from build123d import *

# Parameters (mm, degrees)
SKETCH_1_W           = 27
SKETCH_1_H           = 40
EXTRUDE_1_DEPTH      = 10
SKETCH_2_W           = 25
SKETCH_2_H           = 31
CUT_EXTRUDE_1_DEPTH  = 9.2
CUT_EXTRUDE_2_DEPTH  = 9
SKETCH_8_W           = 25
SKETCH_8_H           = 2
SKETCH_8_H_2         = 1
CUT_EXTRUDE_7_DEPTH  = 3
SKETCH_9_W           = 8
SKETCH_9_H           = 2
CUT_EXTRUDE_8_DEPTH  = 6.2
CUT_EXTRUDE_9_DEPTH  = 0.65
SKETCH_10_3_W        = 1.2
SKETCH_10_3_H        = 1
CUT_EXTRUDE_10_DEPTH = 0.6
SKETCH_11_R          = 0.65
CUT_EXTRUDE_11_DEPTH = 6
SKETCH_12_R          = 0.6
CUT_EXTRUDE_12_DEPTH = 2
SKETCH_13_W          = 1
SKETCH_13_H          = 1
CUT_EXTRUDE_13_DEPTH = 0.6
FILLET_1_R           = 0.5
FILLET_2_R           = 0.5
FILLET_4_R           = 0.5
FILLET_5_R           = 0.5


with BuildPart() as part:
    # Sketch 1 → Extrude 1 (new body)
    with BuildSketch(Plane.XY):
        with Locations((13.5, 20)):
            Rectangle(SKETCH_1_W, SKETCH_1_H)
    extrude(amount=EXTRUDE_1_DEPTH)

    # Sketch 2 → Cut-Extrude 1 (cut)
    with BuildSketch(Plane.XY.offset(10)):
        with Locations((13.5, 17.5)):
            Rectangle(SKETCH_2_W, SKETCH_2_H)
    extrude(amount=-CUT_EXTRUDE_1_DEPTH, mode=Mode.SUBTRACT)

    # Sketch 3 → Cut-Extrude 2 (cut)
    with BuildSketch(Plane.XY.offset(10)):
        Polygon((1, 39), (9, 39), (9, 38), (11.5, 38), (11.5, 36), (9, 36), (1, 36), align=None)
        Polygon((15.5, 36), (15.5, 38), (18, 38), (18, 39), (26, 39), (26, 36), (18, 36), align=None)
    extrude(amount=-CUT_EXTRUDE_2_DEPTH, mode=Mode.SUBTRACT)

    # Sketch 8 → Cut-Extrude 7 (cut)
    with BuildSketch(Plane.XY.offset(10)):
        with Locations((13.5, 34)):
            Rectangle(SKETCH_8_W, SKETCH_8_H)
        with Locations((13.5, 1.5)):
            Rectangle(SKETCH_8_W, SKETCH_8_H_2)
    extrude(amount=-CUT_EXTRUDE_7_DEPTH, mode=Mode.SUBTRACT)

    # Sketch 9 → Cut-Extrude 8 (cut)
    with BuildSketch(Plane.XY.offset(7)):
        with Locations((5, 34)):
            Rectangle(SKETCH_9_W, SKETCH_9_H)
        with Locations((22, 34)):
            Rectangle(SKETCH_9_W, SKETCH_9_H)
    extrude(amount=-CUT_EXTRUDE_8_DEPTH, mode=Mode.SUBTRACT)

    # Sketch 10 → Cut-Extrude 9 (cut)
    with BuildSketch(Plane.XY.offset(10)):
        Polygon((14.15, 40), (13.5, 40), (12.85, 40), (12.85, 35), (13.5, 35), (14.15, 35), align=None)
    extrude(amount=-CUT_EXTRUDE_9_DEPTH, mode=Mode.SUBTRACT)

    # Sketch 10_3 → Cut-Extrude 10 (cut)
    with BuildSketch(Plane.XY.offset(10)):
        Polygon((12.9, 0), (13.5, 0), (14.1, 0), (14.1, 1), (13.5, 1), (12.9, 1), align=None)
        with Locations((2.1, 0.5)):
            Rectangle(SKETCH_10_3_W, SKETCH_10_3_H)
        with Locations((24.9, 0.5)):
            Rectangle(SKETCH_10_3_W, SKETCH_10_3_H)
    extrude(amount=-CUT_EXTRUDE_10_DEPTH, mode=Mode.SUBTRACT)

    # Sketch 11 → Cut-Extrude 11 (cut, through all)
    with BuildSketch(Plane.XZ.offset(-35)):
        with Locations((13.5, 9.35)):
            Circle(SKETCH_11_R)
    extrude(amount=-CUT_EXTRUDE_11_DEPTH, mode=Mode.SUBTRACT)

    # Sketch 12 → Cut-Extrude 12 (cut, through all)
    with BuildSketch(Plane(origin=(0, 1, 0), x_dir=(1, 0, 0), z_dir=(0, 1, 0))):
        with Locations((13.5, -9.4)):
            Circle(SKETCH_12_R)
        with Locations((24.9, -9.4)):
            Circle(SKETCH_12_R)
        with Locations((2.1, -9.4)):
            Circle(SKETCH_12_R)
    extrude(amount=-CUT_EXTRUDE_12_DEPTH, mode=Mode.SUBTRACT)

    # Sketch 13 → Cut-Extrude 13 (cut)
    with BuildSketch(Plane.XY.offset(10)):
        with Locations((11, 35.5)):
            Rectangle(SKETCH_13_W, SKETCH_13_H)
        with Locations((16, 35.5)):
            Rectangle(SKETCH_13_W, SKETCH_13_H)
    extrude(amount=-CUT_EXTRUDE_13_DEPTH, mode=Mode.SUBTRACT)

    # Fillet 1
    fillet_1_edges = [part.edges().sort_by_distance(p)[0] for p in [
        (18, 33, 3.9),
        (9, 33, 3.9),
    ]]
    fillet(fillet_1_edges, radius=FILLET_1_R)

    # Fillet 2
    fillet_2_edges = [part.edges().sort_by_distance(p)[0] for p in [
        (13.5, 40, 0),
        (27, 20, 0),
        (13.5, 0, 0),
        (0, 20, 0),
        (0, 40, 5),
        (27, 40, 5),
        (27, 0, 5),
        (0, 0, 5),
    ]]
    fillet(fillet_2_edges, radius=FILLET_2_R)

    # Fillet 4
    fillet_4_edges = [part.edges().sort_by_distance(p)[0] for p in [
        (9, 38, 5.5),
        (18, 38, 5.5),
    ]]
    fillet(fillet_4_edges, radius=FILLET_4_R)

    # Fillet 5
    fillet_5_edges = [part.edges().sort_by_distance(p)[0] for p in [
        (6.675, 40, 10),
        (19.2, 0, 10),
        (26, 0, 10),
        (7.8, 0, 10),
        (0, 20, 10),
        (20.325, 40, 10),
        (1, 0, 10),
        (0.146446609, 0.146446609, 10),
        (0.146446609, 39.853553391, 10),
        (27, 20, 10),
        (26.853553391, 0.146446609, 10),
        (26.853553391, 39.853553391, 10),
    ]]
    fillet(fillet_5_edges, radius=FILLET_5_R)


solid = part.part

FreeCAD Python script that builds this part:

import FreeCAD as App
import Part
import Sketcher

V = App.Vector


def edges_at(feature, points):
    """Names of the edges that pass closest to the given points."""
    edges = feature.Shape.Edges
    near = lambda p: min(range(len(edges)), key=lambda i: edges[i].distToShape(Part.Vertex(*p))[0])
    return sorted({f"Edge{near(p) + 1}" for p in points})

doc = App.newDocument("Part")
body = doc.addObject("PartDesign::Body", "Body")

# Sketch on XY plane
sketch1 = body.newObject("Sketcher::SketchObject", "Sketch")
sketch1.AttachmentSupport = (doc.getObject("XY_Plane"), [""])
sketch1.MapMode = "FlatFace"
sketch1.addGeometry([
    Part.LineSegment(V(0, 40, 0), V(0, 0, 0)),
    Part.LineSegment(V(0, 0, 0), V(27, 0, 0)),
    Part.LineSegment(V(27, 0, 0), V(27, 40, 0)),
    Part.LineSegment(V(27, 40, 0), V(0, 40, 0)),
], False)
sketch1.addConstraint([
    Sketcher.Constraint("Coincident", 0, 2, 1, 1),
    Sketcher.Constraint("Coincident", 1, 2, 2, 1),
    Sketcher.Constraint("Coincident", 2, 2, 3, 1),
    Sketcher.Constraint("Coincident", 3, 2, 0, 1),
    Sketcher.Constraint("Vertical", 0),
    Sketcher.Constraint("Horizontal", 1),
    Sketcher.Constraint("Vertical", 2),
    Sketcher.Constraint("Horizontal", 3),
    Sketcher.Constraint("Coincident", 0, 2, -1, 1),
    Sketcher.Constraint("DistanceX", 1, 1, 1, 2, 27.0),
    Sketcher.Constraint("DistanceY", 0, 2, 0, 1, 40.0),
])
pad1 = body.newObject("PartDesign::Pad", "Pad")
pad1.Profile = sketch1
pad1.Length = 10

# Sketch on XY plane
sketch2 = body.newObject("Sketcher::SketchObject", "Sketch001")
sketch2.AttachmentSupport = (doc.getObject("XY_Plane"), [""])
sketch2.MapMode = "FlatFace"
sketch2.AttachmentOffset = App.Placement(V(0, 0, 10), App.Rotation())
sketch2.addGeometry([
    Part.LineSegment(V(1, 33, 0), V(1, 2, 0)),
    Part.LineSegment(V(1, 2, 0), V(26, 2, 0)),
    Part.LineSegment(V(26, 2, 0), V(26, 33, 0)),
    Part.LineSegment(V(26, 33, 0), V(1, 33, 0)),
], False)
sketch2.addConstraint([
    Sketcher.Constraint("Coincident", 0, 2, 1, 1),
    Sketcher.Constraint("Coincident", 1, 2, 2, 1),
    Sketcher.Constraint("Coincident", 2, 2, 3, 1),
    Sketcher.Constraint("Coincident", 3, 2, 0, 1),
    Sketcher.Constraint("Vertical", 0),
    Sketcher.Constraint("Horizontal", 1),
    Sketcher.Constraint("Vertical", 2),
    Sketcher.Constraint("Horizontal", 3),
    Sketcher.Constraint("DistanceX", 1, 1, 1, 2, 25.0),
    Sketcher.Constraint("DistanceY", 0, 2, 0, 1, 31.0),
    Sketcher.Constraint("DistanceX", -1, 1, 0, 2, 1.0),
    Sketcher.Constraint("DistanceY", -1, 1, 0, 2, 2.0),
])
pocket1 = body.newObject("PartDesign::Pocket", "Pocket")
pocket1.Profile = sketch2
pocket1.Length = 9.2

# Sketch on XY plane
sketch3 = body.newObject("Sketcher::SketchObject", "Sketch002")
sketch3.AttachmentSupport = (doc.getObject("XY_Plane"), [""])
sketch3.MapMode = "FlatFace"
sketch3.AttachmentOffset = App.Placement(V(0, 0, 10), App.Rotation())
sketch3.addGeometry([
    Part.LineSegment(V(9, 39, 0), V(1, 39, 0)),  # 0
    Part.LineSegment(V(1, 39, 0), V(1, 36, 0)),  # 1
    Part.LineSegment(V(1, 36, 0), V(11.5, 36, 0)),  # 2
    Part.LineSegment(V(11.5, 36, 0), V(11.5, 38, 0)),  # 3
    Part.LineSegment(V(11.5, 38, 0), V(9, 38, 0)),  # 4
    Part.LineSegment(V(9, 38, 0), V(9, 39, 0)),  # 5
    Part.LineSegment(V(15.5, 38, 0), V(15.5, 36, 0)),  # 6
    Part.LineSegment(V(15.5, 36, 0), V(26, 36, 0)),  # 7
    Part.LineSegment(V(26, 36, 0), V(26, 39, 0)),  # 8
    Part.LineSegment(V(26, 39, 0), V(18, 39, 0)),  # 9
    Part.LineSegment(V(18, 39, 0), V(18, 38, 0)),  # 10
    Part.LineSegment(V(18, 38, 0), V(15.5, 38, 0)),  # 11
], False)
sketch3.addConstraint([
    Sketcher.Constraint("Coincident", 0, 2, 1, 1),
    Sketcher.Constraint("Coincident", 1, 2, 2, 1),
    Sketcher.Constraint("Coincident", 2, 2, 3, 1),
    Sketcher.Constraint("Coincident", 3, 2, 4, 1),
    Sketcher.Constraint("Coincident", 4, 2, 5, 1),
    Sketcher.Constraint("Coincident", 5, 2, 0, 1),
    Sketcher.Constraint("Coincident", 6, 2, 7, 1),
    Sketcher.Constraint("Coincident", 7, 2, 8, 1),
    Sketcher.Constraint("Coincident", 8, 2, 9, 1),
    Sketcher.Constraint("Coincident", 9, 2, 10, 1),
    Sketcher.Constraint("Coincident", 10, 2, 11, 1),
    Sketcher.Constraint("Coincident", 11, 2, 6, 1),
    Sketcher.Constraint("Horizontal", 0),
    Sketcher.Constraint("Vertical", 1),
    Sketcher.Constraint("Horizontal", 2),
    Sketcher.Constraint("Vertical", 3),
    Sketcher.Constraint("Horizontal", 4),
    Sketcher.Constraint("Vertical", 5),
    Sketcher.Constraint("Vertical", 6),
    Sketcher.Constraint("Horizontal", 7),
    Sketcher.Constraint("Vertical", 8),
    Sketcher.Constraint("Horizontal", 9),
    Sketcher.Constraint("Vertical", 10),
    Sketcher.Constraint("Horizontal", 11),
    Sketcher.Constraint("Horizontal", 2, 2, 6, 2),
    Sketcher.Constraint("Horizontal", 5, 2, 8, 2),
    Sketcher.Constraint("Horizontal", 4, 2, 10, 2),
    Sketcher.Constraint("Equal", 2, 7),
    Sketcher.Constraint("Equal", 0, 9),
    Sketcher.Constraint("DistanceX", 0, 2, 0, 1, 8.0),
    Sketcher.Constraint("DistanceY", 1, 2, 1, 1, 3.0),
    Sketcher.Constraint("DistanceY", 3, 1, 3, 2, 2.0),
    Sketcher.Constraint("DistanceX", 2, 1, 2, 2, 10.5),
    Sketcher.Constraint("DistanceX", -1, 1, 0, 2, 1.0),
    Sketcher.Constraint("DistanceY", -1, 1, 0, 2, 39.0),
    Sketcher.Constraint("DistanceX", -1, 1, 7, 2, 26.0),
])
pocket2 = body.newObject("PartDesign::Pocket", "Pocket001")
pocket2.Profile = sketch3
pocket2.Length = 9

# Sketch on XY plane
sketch4 = body.newObject("Sketcher::SketchObject", "Sketch003")
sketch4.AttachmentSupport = (doc.getObject("XY_Plane"), [""])
sketch4.MapMode = "FlatFace"
sketch4.AttachmentOffset = App.Placement(V(0, 0, 10), App.Rotation())
sketch4.addGeometry([
    Part.LineSegment(V(1, 35, 0), V(1, 33, 0)),  # 0
    Part.LineSegment(V(1, 33, 0), V(26, 33, 0)),  # 1
    Part.LineSegment(V(26, 33, 0), V(26, 35, 0)),  # 2
    Part.LineSegment(V(26, 35, 0), V(1, 35, 0)),  # 3
    Part.LineSegment(V(1, 2, 0), V(1, 1, 0)),  # 4
    Part.LineSegment(V(1, 1, 0), V(26, 1, 0)),  # 5
    Part.LineSegment(V(26, 1, 0), V(26, 2, 0)),  # 6
    Part.LineSegment(V(26, 2, 0), V(1, 2, 0)),  # 7
], False)
sketch4.addConstraint([
    Sketcher.Constraint("Coincident", 0, 2, 1, 1),
    Sketcher.Constraint("Coincident", 1, 2, 2, 1),
    Sketcher.Constraint("Coincident", 2, 2, 3, 1),
    Sketcher.Constraint("Coincident", 3, 2, 0, 1),
    Sketcher.Constraint("Coincident", 4, 2, 5, 1),
    Sketcher.Constraint("Coincident", 5, 2, 6, 1),
    Sketcher.Constraint("Coincident", 6, 2, 7, 1),
    Sketcher.Constraint("Coincident", 7, 2, 4, 1),
    Sketcher.Constraint("Vertical", 0),
    Sketcher.Constraint("Horizontal", 1),
    Sketcher.Constraint("Vertical", 2),
    Sketcher.Constraint("Horizontal", 3),
    Sketcher.Constraint("Vertical", 4),
    Sketcher.Constraint("Horizontal", 5),
    Sketcher.Constraint("Vertical", 6),
    Sketcher.Constraint("Horizontal", 7),
    Sketcher.Constraint("Vertical", 3, 2, 4, 2),
    Sketcher.Constraint("Vertical", 2, 2, 5, 2),
    Sketcher.Constraint("DistanceX", 1, 1, 1, 2, 25.0),
    Sketcher.Constraint("DistanceY", 0, 2, 0, 1, 2.0),
    Sketcher.Constraint("DistanceY", 4, 2, 4, 1, 1.0),
    Sketcher.Constraint("DistanceX", -1, 1, 0, 2, 1.0),
    Sketcher.Constraint("DistanceY", -1, 1, 0, 2, 33.0),
    Sketcher.Constraint("DistanceY", -1, 1, 4, 2, 1.0),
])
pocket3 = body.newObject("PartDesign::Pocket", "Pocket002")
pocket3.Profile = sketch4
pocket3.Length = 3

# Sketch on XY plane
sketch5 = body.newObject("Sketcher::SketchObject", "Sketch004")
sketch5.AttachmentSupport = (doc.getObject("XY_Plane"), [""])
sketch5.MapMode = "FlatFace"
sketch5.AttachmentOffset = App.Placement(V(0, 0, 7), App.Rotation())
sketch5.addGeometry([
    Part.LineSegment(V(1, 35, 0), V(1, 33, 0)),  # 0
    Part.LineSegment(V(1, 33, 0), V(9, 33, 0)),  # 1
    Part.LineSegment(V(9, 33, 0), V(9, 35, 0)),  # 2
    Part.LineSegment(V(9, 35, 0), V(1, 35, 0)),  # 3
    Part.LineSegment(V(18, 35, 0), V(18, 33, 0)),  # 4
    Part.LineSegment(V(18, 33, 0), V(26, 33, 0)),  # 5
    Part.LineSegment(V(26, 33, 0), V(26, 35, 0)),  # 6
    Part.LineSegment(V(26, 35, 0), V(18, 35, 0)),  # 7
], False)
sketch5.addConstraint([
    Sketcher.Constraint("Coincident", 0, 2, 1, 1),
    Sketcher.Constraint("Coincident", 1, 2, 2, 1),
    Sketcher.Constraint("Coincident", 2, 2, 3, 1),
    Sketcher.Constraint("Coincident", 3, 2, 0, 1),
    Sketcher.Constraint("Coincident", 4, 2, 5, 1),
    Sketcher.Constraint("Coincident", 5, 2, 6, 1),
    Sketcher.Constraint("Coincident", 6, 2, 7, 1),
    Sketcher.Constraint("Coincident", 7, 2, 4, 1),
    Sketcher.Constraint("Vertical", 0),
    Sketcher.Constraint("Horizontal", 1),
    Sketcher.Constraint("Vertical", 2),
    Sketcher.Constraint("Horizontal", 3),
    Sketcher.Constraint("Vertical", 4),
    Sketcher.Constraint("Horizontal", 5),
    Sketcher.Constraint("Vertical", 6),
    Sketcher.Constraint("Horizontal", 7),
    Sketcher.Constraint("Horizontal", 1, 2, 4, 2),
    Sketcher.Constraint("Horizontal", 3, 2, 6, 2),
    Sketcher.Constraint("Equal", 3, 5),
    Sketcher.Constraint("DistanceX", 1, 1, 1, 2, 8.0),
    Sketcher.Constraint("DistanceY", 0, 2, 0, 1, 2.0),
    Sketcher.Constraint("DistanceX", -1, 1, 0, 2, 1.0),
    Sketcher.Constraint("DistanceY", -1, 1, 0, 2, 33.0),
    Sketcher.Constraint("DistanceX", -1, 1, 4, 2, 18.0),
])
pocket4 = body.newObject("PartDesign::Pocket", "Pocket003")
pocket4.Profile = sketch5
pocket4.Length = 6.2

# Sketch on XY plane
sketch6 = body.newObject("Sketcher::SketchObject", "Sketch005")
sketch6.AttachmentSupport = (doc.getObject("XY_Plane"), [""])
sketch6.MapMode = "FlatFace"
sketch6.AttachmentOffset = App.Placement(V(0, 0, 10), App.Rotation())
sketch6.addGeometry([
    Part.LineSegment(V(14.2, 40, 0), V(12.8, 40, 0)),
    Part.LineSegment(V(12.8, 40, 0), V(12.8, 35, 0)),
    Part.LineSegment(V(12.8, 35, 0), V(14.2, 35, 0)),
    Part.LineSegment(V(14.2, 35, 0), V(14.2, 40, 0)),
], False)
sketch6.addConstraint([
    Sketcher.Constraint("Coincident", 0, 2, 1, 1),
    Sketcher.Constraint("Coincident", 1, 2, 2, 1),
    Sketcher.Constraint("Coincident", 2, 2, 3, 1),
    Sketcher.Constraint("Coincident", 3, 2, 0, 1),
    Sketcher.Constraint("Horizontal", 0),
    Sketcher.Constraint("Vertical", 1),
    Sketcher.Constraint("Horizontal", 2),
    Sketcher.Constraint("Vertical", 3),
    Sketcher.Constraint("DistanceY", 1, 2, 1, 1, 5.0),
    Sketcher.Constraint("DistanceX", 0, 2, 0, 1, 1.3),
    Sketcher.Constraint("DistanceY", -1, 1, 0, 2, 40.0),
    Sketcher.Constraint("DistanceX", -1, 1, 0, 2, 12.85),
])
pocket5 = body.newObject("PartDesign::Pocket", "Pocket004")
pocket5.Profile = sketch6
pocket5.Length = 0.65

# Sketch on XY plane
sketch7 = body.newObject("Sketcher::SketchObject", "Sketch006")
sketch7.AttachmentSupport = (doc.getObject("XY_Plane"), [""])
sketch7.MapMode = "FlatFace"
sketch7.AttachmentOffset = App.Placement(V(0, 0, 10), App.Rotation())
sketch7.addGeometry([
    Part.LineSegment(V(12.9, 0, 0), V(14.1, 0, 0)),  # 0
    Part.LineSegment(V(14.1, 0, 0), V(14.1, 1, 0)),  # 1
    Part.LineSegment(V(14.1, 1, 0), V(12.9, 1, 0)),  # 2
    Part.LineSegment(V(12.9, 1, 0), V(12.9, 0, 0)),  # 3
    Part.LineSegment(V(1.5, 1, 0), V(1.5, 0, 0)),  # 4
    Part.LineSegment(V(1.5, 0, 0), V(2.7, 0, 0)),  # 5
    Part.LineSegment(V(2.7, 0, 0), V(2.7, 1, 0)),  # 6
    Part.LineSegment(V(2.7, 1, 0), V(1.5, 1, 0)),  # 7
    Part.LineSegment(V(24.3, 1, 0), V(24.3, 0, 0)),  # 8
    Part.LineSegment(V(24.3, 0, 0), V(25.5, 0, 0)),  # 9
    Part.LineSegment(V(25.5, 0, 0), V(25.5, 1, 0)),  # 10
    Part.LineSegment(V(25.5, 1, 0), V(24.3, 1, 0)),  # 11
], False)
sketch7.addConstraint([
    Sketcher.Constraint("Coincident", 0, 2, 1, 1),
    Sketcher.Constraint("Coincident", 1, 2, 2, 1),
    Sketcher.Constraint("Coincident", 2, 2, 3, 1),
    Sketcher.Constraint("Coincident", 3, 2, 0, 1),
    Sketcher.Constraint("Coincident", 4, 2, 5, 1),
    Sketcher.Constraint("Coincident", 5, 2, 6, 1),
    Sketcher.Constraint("Coincident", 6, 2, 7, 1),
    Sketcher.Constraint("Coincident", 7, 2, 4, 1),
    Sketcher.Constraint("Coincident", 8, 2, 9, 1),
    Sketcher.Constraint("Coincident", 9, 2, 10, 1),
    Sketcher.Constraint("Coincident", 10, 2, 11, 1),
    Sketcher.Constraint("Coincident", 11, 2, 8, 1),
    Sketcher.Constraint("Horizontal", 0),
    Sketcher.Constraint("Vertical", 1),
    Sketcher.Constraint("Horizontal", 2),
    Sketcher.Constraint("Vertical", 3),
    Sketcher.Constraint("Vertical", 4),
    Sketcher.Constraint("Horizontal", 5),
    Sketcher.Constraint("Vertical", 6),
    Sketcher.Constraint("Horizontal", 7),
    Sketcher.Constraint("Vertical", 8),
    Sketcher.Constraint("Horizontal", 9),
    Sketcher.Constraint("Vertical", 10),
    Sketcher.Constraint("Horizontal", 11),
    Sketcher.Constraint("PointOnObject", 0, 2, -1),
    Sketcher.Constraint("PointOnObject", 4, 2, -1),
    Sketcher.Constraint("PointOnObject", 8, 2, -1),
    Sketcher.Constraint("Horizontal", 2, 2, 6, 2),
    Sketcher.Constraint("Horizontal", 7, 2, 10, 2),
    Sketcher.Constraint("Equal", 2, 5),
    Sketcher.Constraint("Equal", 7, 9),
    Sketcher.Constraint("DistanceY", 1, 1, 1, 2, 1.0),
    Sketcher.Constraint("DistanceX", 0, 1, 0, 2, 1.2),
    Sketcher.Constraint("DistanceX", -1, 1, 0, 2, 14.1),
    Sketcher.Constraint("DistanceX", -1, 1, 4, 2, 1.5),
    Sketcher.Constraint("DistanceX", -1, 1, 8, 2, 24.3),
])
pocket6 = body.newObject("PartDesign::Pocket", "Pocket005")
pocket6.Profile = sketch7
pocket6.Length = 0.6

# Sketch on XZ plane
sketch8 = body.newObject("Sketcher::SketchObject", "Sketch007")
sketch8.AttachmentSupport = (doc.getObject("XZ_Plane"), [""])
sketch8.MapMode = "FlatFace"
sketch8.AttachmentOffset = App.Placement(V(0, 0, -35), App.Rotation())
sketch8.addGeometry(Part.Circle(V(13.5, 9.3, 0), V(0, 0, 1), 0.7), False)
sketch8.addConstraint([
    Sketcher.Constraint("Diameter", 0, 1.3),
    Sketcher.Constraint("DistanceX", -1, 1, 0, 3, 13.5),
    Sketcher.Constraint("DistanceY", -1, 1, 0, 3, 9.35),
])
pocket7 = body.newObject("PartDesign::Pocket", "Pocket006")
pocket7.Profile = sketch8
pocket7.Type = "ThroughAll"

# Sketch on XZ plane
sketch9 = body.newObject("Sketcher::SketchObject", "Sketch008")
sketch9.AttachmentSupport = (doc.getObject("XZ_Plane"), [""])
sketch9.MapMode = "FlatFace"
sketch9.AttachmentOffset = App.Placement(V(0, 0, -1), App.Rotation())
sketch9.addGeometry([
    Part.Circle(V(13.5, 9.4, 0), V(0, 0, 1), 0.6),
    Part.Circle(V(24.9, 9.4, 0), V(0, 0, 1), 0.6),
    Part.Circle(V(2.1, 9.4, 0), V(0, 0, 1), 0.6),
], False)
sketch9.addConstraint([
    Sketcher.Constraint("Equal", 0, 1),
    Sketcher.Constraint("Equal", 1, 2),
    Sketcher.Constraint("Horizontal", 0, 3, 1, 3),
    Sketcher.Constraint("Horizontal", 1, 3, 2, 3),
    Sketcher.Constraint("Diameter", 0, 1.2),
    Sketcher.Constraint("DistanceX", -1, 1, 0, 3, 13.5),
    Sketcher.Constraint("DistanceY", -1, 1, 0, 3, 9.4),
    Sketcher.Constraint("DistanceX", -1, 1, 1, 3, 24.9),
    Sketcher.Constraint("DistanceX", -1, 1, 2, 3, 2.1),
])
pocket8 = body.newObject("PartDesign::Pocket", "Pocket007")
pocket8.Profile = sketch9
pocket8.Type = "ThroughAll"
pocket8.Reversed = True

# Sketch on XY plane
sketch10 = body.newObject("Sketcher::SketchObject", "Sketch009")
sketch10.AttachmentSupport = (doc.getObject("XY_Plane"), [""])
sketch10.MapMode = "FlatFace"
sketch10.AttachmentOffset = App.Placement(V(0, 0, 10), App.Rotation())
sketch10.addGeometry([
    Part.LineSegment(V(10.5, 36, 0), V(10.5, 35, 0)),  # 0
    Part.LineSegment(V(10.5, 35, 0), V(11.5, 35, 0)),  # 1
    Part.LineSegment(V(11.5, 35, 0), V(11.5, 36, 0)),  # 2
    Part.LineSegment(V(11.5, 36, 0), V(10.5, 36, 0)),  # 3
    Part.LineSegment(V(15.5, 36, 0), V(15.5, 35, 0)),  # 4
    Part.LineSegment(V(15.5, 35, 0), V(16.5, 35, 0)),  # 5
    Part.LineSegment(V(16.5, 35, 0), V(16.5, 36, 0)),  # 6
    Part.LineSegment(V(16.5, 36, 0), V(15.5, 36, 0)),  # 7
], False)
sketch10.addConstraint([
    Sketcher.Constraint("Coincident", 0, 2, 1, 1),
    Sketcher.Constraint("Coincident", 1, 2, 2, 1),
    Sketcher.Constraint("Coincident", 2, 2, 3, 1),
    Sketcher.Constraint("Coincident", 3, 2, 0, 1),
    Sketcher.Constraint("Coincident", 4, 2, 5, 1),
    Sketcher.Constraint("Coincident", 5, 2, 6, 1),
    Sketcher.Constraint("Coincident", 6, 2, 7, 1),
    Sketcher.Constraint("Coincident", 7, 2, 4, 1),
    Sketcher.Constraint("Vertical", 0),
    Sketcher.Constraint("Horizontal", 1),
    Sketcher.Constraint("Vertical", 2),
    Sketcher.Constraint("Horizontal", 3),
    Sketcher.Constraint("Vertical", 4),
    Sketcher.Constraint("Horizontal", 5),
    Sketcher.Constraint("Vertical", 6),
    Sketcher.Constraint("Horizontal", 7),
    Sketcher.Constraint("Horizontal", 1, 2, 4, 2),
    Sketcher.Constraint("Horizontal", 3, 2, 6, 2),
    Sketcher.Constraint("Equal", 3, 5),
    Sketcher.Constraint("Equal", 7, 0),
    Sketcher.Constraint("DistanceX", 1, 1, 1, 2, 1.0),
    Sketcher.Constraint("DistanceY", -1, 1, 0, 2, 35.0),
    Sketcher.Constraint("DistanceX", 1, 2, 4, 2, 4.0),
    Sketcher.Constraint("DistanceX", -1, 1, 0, 2, 10.5),
])
pocket9 = body.newObject("PartDesign::Pocket", "Pocket008")
pocket9.Profile = sketch10
pocket9.Length = 0.6
doc.recompute()

fillet = body.newObject("PartDesign::Fillet", "Fillet")
fillet.Base = (pocket9, edges_at(pocket9, [(18, 33, 3.9), (9, 33, 3.9)]))
fillet.Radius = 0.5
doc.recompute()

fillet2 = body.newObject("PartDesign::Fillet", "Fillet001")
fillet2.Base = (fillet, edges_at(fillet, [
    (13.5, 40, 0),
    (27, 20, 0),
    (13.5, 0, 0),
    (0, 20, 0),
    (0, 40, 5),
    (27, 40, 5),
    (27, 0, 5),
    (0, 0, 5),
]))
fillet2.Radius = 0.5
doc.recompute()

fillet3 = body.newObject("PartDesign::Fillet", "Fillet002")
fillet3.Base = (fillet2, edges_at(fillet2, [(9, 38, 5.5), (18, 38, 5.5)]))
fillet3.Radius = 0.5
doc.recompute()

fillet4 = body.newObject("PartDesign::Fillet", "Fillet003")
fillet4.Base = (fillet3, edges_at(fillet3, [
    (6.675, 40, 10),
    (19.2, 0, 10),
    (26, 0, 10),
    (7.8, 0, 10),
    (0, 20, 10),
    (20.325, 40, 10),
    (1, 0, 10),
    (0.146, 0.146, 10),
    (0.146, 39.854, 10),
    (27, 20, 10),
    (26.854, 0.146, 10),
    (26.854, 39.854, 10),
]))
fillet4.Radius = 0.5

doc.recompute()
